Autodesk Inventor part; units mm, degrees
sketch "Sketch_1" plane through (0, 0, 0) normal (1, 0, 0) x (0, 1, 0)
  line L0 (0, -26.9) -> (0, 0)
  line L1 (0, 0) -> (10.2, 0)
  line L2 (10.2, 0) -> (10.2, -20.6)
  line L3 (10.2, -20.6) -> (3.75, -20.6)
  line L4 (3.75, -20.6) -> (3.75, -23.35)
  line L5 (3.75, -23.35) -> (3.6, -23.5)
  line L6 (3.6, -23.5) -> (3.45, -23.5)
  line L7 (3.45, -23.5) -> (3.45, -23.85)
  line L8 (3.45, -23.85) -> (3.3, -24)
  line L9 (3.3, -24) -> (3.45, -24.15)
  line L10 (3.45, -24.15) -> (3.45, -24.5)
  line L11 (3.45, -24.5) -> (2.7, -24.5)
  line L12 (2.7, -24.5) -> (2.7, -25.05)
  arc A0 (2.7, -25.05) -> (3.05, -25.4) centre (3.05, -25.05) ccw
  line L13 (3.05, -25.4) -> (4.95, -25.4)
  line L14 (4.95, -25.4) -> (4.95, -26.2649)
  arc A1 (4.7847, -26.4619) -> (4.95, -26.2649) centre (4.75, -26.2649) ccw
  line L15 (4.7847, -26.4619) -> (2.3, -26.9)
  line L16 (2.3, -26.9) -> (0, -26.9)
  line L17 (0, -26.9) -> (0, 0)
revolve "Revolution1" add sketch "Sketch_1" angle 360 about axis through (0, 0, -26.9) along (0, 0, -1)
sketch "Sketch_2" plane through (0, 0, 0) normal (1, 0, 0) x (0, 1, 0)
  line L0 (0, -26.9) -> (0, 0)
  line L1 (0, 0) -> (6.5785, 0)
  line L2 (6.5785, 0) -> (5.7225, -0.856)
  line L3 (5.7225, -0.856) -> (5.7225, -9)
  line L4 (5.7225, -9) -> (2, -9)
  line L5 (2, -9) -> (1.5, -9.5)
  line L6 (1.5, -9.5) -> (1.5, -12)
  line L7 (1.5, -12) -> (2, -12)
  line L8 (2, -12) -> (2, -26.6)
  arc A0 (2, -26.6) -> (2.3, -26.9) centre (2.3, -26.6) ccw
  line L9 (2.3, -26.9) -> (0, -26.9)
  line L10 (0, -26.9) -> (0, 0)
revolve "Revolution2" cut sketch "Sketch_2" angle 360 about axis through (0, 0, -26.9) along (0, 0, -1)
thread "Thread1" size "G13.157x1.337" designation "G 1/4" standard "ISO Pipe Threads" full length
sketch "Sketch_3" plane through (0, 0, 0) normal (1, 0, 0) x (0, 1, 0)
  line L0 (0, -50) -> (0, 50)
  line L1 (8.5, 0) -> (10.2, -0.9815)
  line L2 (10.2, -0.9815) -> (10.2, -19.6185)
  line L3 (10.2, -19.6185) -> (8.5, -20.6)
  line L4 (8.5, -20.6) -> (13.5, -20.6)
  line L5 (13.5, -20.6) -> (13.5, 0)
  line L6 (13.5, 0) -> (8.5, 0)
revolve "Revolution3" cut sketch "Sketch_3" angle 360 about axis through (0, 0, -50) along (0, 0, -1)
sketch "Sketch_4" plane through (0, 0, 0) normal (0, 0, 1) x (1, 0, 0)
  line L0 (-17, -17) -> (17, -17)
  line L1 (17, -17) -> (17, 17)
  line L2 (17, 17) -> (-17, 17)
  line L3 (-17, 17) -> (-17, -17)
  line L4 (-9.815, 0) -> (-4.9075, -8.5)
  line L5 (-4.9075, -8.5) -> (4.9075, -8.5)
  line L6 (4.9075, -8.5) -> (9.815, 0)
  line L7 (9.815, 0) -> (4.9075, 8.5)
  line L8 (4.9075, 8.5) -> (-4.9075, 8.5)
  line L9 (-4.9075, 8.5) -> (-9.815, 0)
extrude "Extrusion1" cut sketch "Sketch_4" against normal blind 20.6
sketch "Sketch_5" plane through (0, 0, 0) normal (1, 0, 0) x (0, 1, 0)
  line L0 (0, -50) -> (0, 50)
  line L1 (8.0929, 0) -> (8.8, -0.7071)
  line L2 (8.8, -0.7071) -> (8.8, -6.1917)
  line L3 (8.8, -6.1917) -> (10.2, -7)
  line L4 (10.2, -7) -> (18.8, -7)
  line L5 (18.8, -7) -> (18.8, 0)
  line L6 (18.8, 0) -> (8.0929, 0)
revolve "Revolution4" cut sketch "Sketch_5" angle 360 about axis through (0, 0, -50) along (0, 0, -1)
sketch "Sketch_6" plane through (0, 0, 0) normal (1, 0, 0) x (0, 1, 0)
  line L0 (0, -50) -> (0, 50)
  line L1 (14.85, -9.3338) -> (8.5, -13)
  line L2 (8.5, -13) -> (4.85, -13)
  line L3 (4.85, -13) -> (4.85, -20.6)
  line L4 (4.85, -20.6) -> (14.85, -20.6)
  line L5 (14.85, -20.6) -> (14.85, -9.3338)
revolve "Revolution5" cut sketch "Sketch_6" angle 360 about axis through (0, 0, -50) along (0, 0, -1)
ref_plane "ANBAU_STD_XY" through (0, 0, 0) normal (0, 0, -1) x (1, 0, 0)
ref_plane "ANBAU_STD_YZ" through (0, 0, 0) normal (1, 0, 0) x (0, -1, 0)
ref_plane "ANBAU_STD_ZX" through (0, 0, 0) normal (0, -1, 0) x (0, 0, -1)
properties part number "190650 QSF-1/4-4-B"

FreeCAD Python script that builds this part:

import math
import FreeCAD as App
import Part
import Sketcher

V = App.Vector
Q = App.Units.Quantity

doc = App.newDocument("Part")
body = doc.addObject("PartDesign::Body", "Body")

sketch1 = doc.addObject("Sketcher::SketchObject", "Sketch")
body.addObject(sketch1)
sketch1.AttachmentSupport = (doc.YZ_Plane, [""])
sketch1.MapMode = "FlatFace"
sketch1.addGeometry(Part.LineSegment(V(0, 0, 0), V(0, -26.9, 0)), False)
sketch1.addGeometry(Part.LineSegment(V(0, -26.9, 0), V(2.3, -26.9, 0)), False)
sketch1.addGeometry(Part.LineSegment(V(2.3, -26.9, 0), V(4.7847, -26.4619, 0)), False)
sketch1.addGeometry(Part.ArcOfCircle(Part.Circle(V(4.75, -26.2649, 0), V(0, 0, 1), 0.200033), math.radians(-80.010272), math.radians(0)), False)
sketch1.addGeometry(Part.LineSegment(V(4.95, -26.2649, 0), V(4.95, -25.4, 0)), False)
sketch1.addGeometry(Part.LineSegment(V(4.95, -25.4, 0), V(3.05, -25.4, 0)), False)
sketch1.addGeometry(Part.ArcOfCircle(Part.Circle(V(3.05, -25.05, 0), V(0, 0, 1), 0.35), math.radians(180), math.radians(270)), False)
sketch1.addGeometry(Part.LineSegment(V(2.7, -25.05, 0), V(2.7, -24.5, 0)), False)
sketch1.addGeometry(Part.LineSegment(V(2.7, -24.5, 0), V(3.45, -24.5, 0)), False)
sketch1.addGeometry(Part.LineSegment(V(3.45, -24.5, 0), V(3.45, -24.15, 0)), False)
sketch1.addGeometry(Part.LineSegment(V(3.45, -24.15, 0), V(3.3, -24, 0)), False)
sketch1.addGeometry(Part.LineSegment(V(3.3, -24, 0), V(3.45, -23.85, 0)), False)
sketch1.addGeometry(Part.LineSegment(V(3.45, -23.85, 0), V(3.45, -23.5, 0)), False)
sketch1.addGeometry(Part.LineSegment(V(3.45, -23.5, 0), V(3.6, -23.5, 0)), False)
sketch1.addGeometry(Part.LineSegment(V(3.6, -23.5, 0), V(3.75, -23.35, 0)), False)
sketch1.addGeometry(Part.LineSegment(V(3.75, -23.35, 0), V(3.75, -20.6, 0)), False)
sketch1.addGeometry(Part.LineSegment(V(3.75, -20.6, 0), V(10.2, -20.6, 0)), False)
sketch1.addGeometry(Part.LineSegment(V(10.2, -20.6, 0), V(10.2, 0, 0)), False)
sketch1.addGeometry(Part.LineSegment(V(10.2, 0, 0), V(0, 0, 0)), False)
sketch1.addConstraint(Sketcher.Constraint("Coincident", 0, 2, 1, 1))
sketch1.addConstraint(Sketcher.Constraint("Coincident", 1, 2, 2, 1))
sketch1.addConstraint(Sketcher.Constraint("Tangent", 2, 2, 3, 1))
sketch1.addConstraint(Sketcher.Constraint("Tangent", 3, 2, 4, 1))
sketch1.addConstraint(Sketcher.Constraint("Coincident", 4, 2, 5, 1))
sketch1.addConstraint(Sketcher.Constraint("Tangent", 5, 2, 6, 2))
sketch1.addConstraint(Sketcher.Constraint("Tangent", 6, 1, 7, 1))
sketch1.addConstraint(Sketcher.Constraint("Coincident", 7, 2, 8, 1))
sketch1.addConstraint(Sketcher.Constraint("Coincident", 8, 2, 9, 1))
sketch1.addConstraint(Sketcher.Constraint("Coincident", 9, 2, 10, 1))
sketch1.addConstraint(Sketcher.Constraint("Coincident", 10, 2, 11, 1))
sketch1.addConstraint(Sketcher.Constraint("Coincident", 11, 2, 12, 1))
sketch1.addConstraint(Sketcher.Constraint("Coincident", 12, 2, 13, 1))
sketch1.addConstraint(Sketcher.Constraint("Coincident", 13, 2, 14, 1))
sketch1.addConstraint(Sketcher.Constraint("Coincident", 14, 2, 15, 1))
sketch1.addConstraint(Sketcher.Constraint("Coincident", 15, 2, 16, 1))
sketch1.addConstraint(Sketcher.Constraint("Coincident", 16, 2, 17, 1))
sketch1.addConstraint(Sketcher.Constraint("Coincident", 17, 2, 18, 1))
sketch1.addConstraint(Sketcher.Constraint("Coincident", 18, 2, 0, 1))
sketch1.addConstraint(Sketcher.Constraint("Vertical", 0))
sketch1.addConstraint(Sketcher.Constraint("Horizontal", 1))
sketch1.addConstraint(Sketcher.Constraint("Vertical", 4))
sketch1.addConstraint(Sketcher.Constraint("Horizontal", 5))
sketch1.addConstraint(Sketcher.Constraint("Vertical", 7))
sketch1.addConstraint(Sketcher.Constraint("Horizontal", 8))
sketch1.addConstraint(Sketcher.Constraint("Vertical", 9))
sketch1.addConstraint(Sketcher.Constraint("Vertical", 12))
sketch1.addConstraint(Sketcher.Constraint("Horizontal", 13))
sketch1.addConstraint(Sketcher.Constraint("Vertical", 15))
sketch1.addConstraint(Sketcher.Constraint("Horizontal", 16))
sketch1.addConstraint(Sketcher.Constraint("Vertical", 17))
sketch1.addConstraint(Sketcher.Constraint("Horizontal", 18))
sketch1.addConstraint(Sketcher.Constraint("Coincident", 18, 2, -1, 1))
sketch1.addConstraint(Sketcher.Constraint("Perpendicular", 10, 11))
sketch1.addConstraint(Sketcher.Constraint("Parallel", 11, 14))
sketch1.addConstraint(Sketcher.Constraint("Vertical", 9, 2, 11, 2))
sketch1.addConstraint(Sketcher.Constraint("Equal", 9, 12))
sketch1.addConstraint(Sketcher.Constraint("Equal", 10, 11))
sketch1.addConstraint(Sketcher.Constraint("Equal", 11, 14))
sketch1.addConstraint(Sketcher.Constraint("Radius", 3, 0.2))
sketch1.addConstraint(Sketcher.Constraint("Angle", 2, Q("9.9996 deg")))
sketch1.addConstraint(Sketcher.Constraint("Radius", 6, 0.35))
sketch1.addConstraint(Sketcher.Constraint("DistanceX", 1, 1, 1, 2, 2.3))
sketch1.addConstraint(Sketcher.Constraint("DistanceX", 5, 2, 5, 1, 1.9))
sketch1.addConstraint(Sketcher.Constraint("DistanceX", 18, 2, 18, 1, 10.2))
sketch1.addConstraint(Sketcher.Constraint("DistanceY", 0, 2, 0, 1, 26.9))
sketch1.addConstraint(Sketcher.Constraint("DistanceY", 17, 1, 17, 2, 20.6))
sketch1.addConstraint(Sketcher.Constraint("DistanceY", 10, 2, -1, 1, 24.0))
sketch1.addConstraint(Sketcher.Constraint("DistanceY", 8, 2, 12, 2, 1.0))
sketch1.addConstraint(Sketcher.Constraint("DistanceX", 8, 1, 8, 2, 0.75))
sketch1.addConstraint(Sketcher.Constraint("DistanceX", 13, 1, 13, 2, 0.15))
sketch1.addConstraint(Sketcher.Constraint("DistanceX", 16, 1, 16, 2, 6.45))
sketch1.addConstraint(Sketcher.Constraint("DistanceY", 7, 1, 7, 2, 0.55))
sketch1.addConstraint(Sketcher.Constraint("DistanceY", 9, 1, 9, 2, 0.35))
revolution = doc.addObject("PartDesign::Revolution", "Revolution")
body.addObject(revolution)
revolution.Profile = sketch1
revolution.ReferenceAxis = (sketch1, ["V_Axis"])
revolution.Angle = 360

sketch2 = doc.addObject("Sketcher::SketchObject", "Sketch001")
body.addObject(sketch2)
sketch2.AttachmentSupport = (doc.YZ_Plane, [""])
sketch2.MapMode = "FlatFace"
sketch2.addGeometry(Part.LineSegment(V(0, 0, 0), V(0, -26.9, 0)), False)
sketch2.addGeometry(Part.LineSegment(V(0, -26.9, 0), V(2.3, -26.9, 0)), False)
sketch2.addGeometry(Part.ArcOfCircle(Part.Circle(V(2.3, -26.6, 0), V(0, 0, 1), 0.3), math.radians(180), math.radians(270)), False)
sketch2.addGeometry(Part.LineSegment(V(2, -26.6, 0), V(2, -12, 0)), False)
sketch2.addGeometry(Part.LineSegment(V(2, -12, 0), V(1.5, -12, 0)), False)
sketch2.addGeometry(Part.LineSegment(V(1.5, -12, 0), V(1.5, -9.5, 0)), False)
sketch2.addGeometry(Part.LineSegment(V(1.5, -9.5, 0), V(2, -9, 0)), False)
sketch2.addGeometry(Part.LineSegment(V(2, -9, 0), V(5.7225, -9, 0)), False)
sketch2.addGeometry(Part.LineSegment(V(5.7225, -9, 0), V(5.7225, -0.856, 0)), False)
sketch2.addGeometry(Part.LineSegment(V(5.7225, -0.856, 0), V(6.5785, 0, 0)), False)
sketch2.addGeometry(Part.LineSegment(V(6.5785, 0, 0), V(0, 0, 0)), False)
sketch2.addConstraint(Sketcher.Constraint("Coincident", 0, 2, 1, 1))
sketch2.addConstraint(Sketcher.Constraint("Tangent", 1, 2, 2, 2))
sketch2.addConstraint(Sketcher.Constraint("Tangent", 2, 1, 3, 1))
sketch2.addConstraint(Sketcher.Constraint("Coincident", 3, 2, 4, 1))
sketch2.addConstraint(Sketcher.Constraint("Coincident", 4, 2, 5, 1))
sketch2.addConstraint(Sketcher.Constraint("Coincident", 5, 2, 6, 1))
sketch2.addConstraint(Sketcher.Constraint("Coincident", 6, 2, 7, 1))
sketch2.addConstraint(Sketcher.Constraint("Coincident", 7, 2, 8, 1))
sketch2.addConstraint(Sketcher.Constraint("Coincident", 8, 2, 9, 1))
sketch2.addConstraint(Sketcher.Constraint("Coincident", 9, 2, 10, 1))
sketch2.addConstraint(Sketcher.Constraint("Coincident", 10, 2, 0, 1))
sketch2.addConstraint(Sketcher.Constraint("Vertical", 0))
sketch2.addConstraint(Sketcher.Constraint("Horizontal", 1))
sketch2.addConstraint(Sketcher.Constraint("Vertical", 3))
sketch2.addConstraint(Sketcher.Constraint("Horizontal", 4))
sketch2.addConstraint(Sketcher.Constraint("Vertical", 5))
sketch2.addConstraint(Sketcher.Constraint("Horizontal", 7))
sketch2.addConstraint(Sketcher.Constraint("Vertical", 8))
sketch2.addConstraint(Sketcher.Constraint("Horizontal", 10))
sketch2.addConstraint(Sketcher.Constraint("Coincident", 10, 2, -1, 1))
sketch2.addConstraint(Sketcher.Constraint("Parallel", 6, 9))
sketch2.addConstraint(Sketcher.Constraint("Vertical", 3, 2, 6, 2))
sketch2.addConstraint(Sketcher.Constraint("Radius", 2, 0.3))
sketch2.addConstraint(Sketcher.Constraint("Angle", 6, Q("45 deg")))
sketch2.addConstraint(Sketcher.Constraint("DistanceX", 1, 1, 1, 2, 2.3))
sketch2.addConstraint(Sketcher.Constraint("DistanceX", 4, 2, 4, 1, 0.5))
sketch2.addConstraint(Sketcher.Constraint("DistanceY", 0, 2, 0, 1, 26.9))
sketch2.addConstraint(Sketcher.Constraint("DistanceY", 3, 1, 3, 2, 14.6))
sketch2.addConstraint(Sketcher.Constraint("DistanceY", 5, 1, 5, 2, 2.5))
sketch2.addConstraint(Sketcher.Constraint("DistanceY", 8, 1, 8, 2, 8.144))
sketch2.addConstraint(Sketcher.Constraint("DistanceX", 7, 1, 7, 2, 3.7225))
groove = doc.addObject("PartDesign::Groove", "Groove")
body.addObject(groove)
groove.Profile = sketch2
groove.ReferenceAxis = (sketch2, ["V_Axis"])
groove.Angle = 360

sketch3 = doc.addObject("Sketcher::SketchObject", "Sketch002")
body.addObject(sketch3)
sketch3.AttachmentSupport = (doc.YZ_Plane, [""])
sketch3.MapMode = "FlatFace"
sketch3.addGeometry(Part.LineSegment(V(13.5, 0, 0), V(8.5, 0, 0)), False)
sketch3.addGeometry(Part.LineSegment(V(8.5, 0, 0), V(10.2, -0.9815, 0)), False)
sketch3.addGeometry(Part.LineSegment(V(10.2, -0.9815, 0), V(10.2, -19.6185, 0)), False)
sketch3.addGeometry(Part.LineSegment(V(10.2, -19.6185, 0), V(8.5, -20.6, 0)), False)
sketch3.addGeometry(Part.LineSegment(V(8.5, -20.6, 0), V(13.5, -20.6, 0)), False)
sketch3.addGeometry(Part.LineSegment(V(13.5, -20.6, 0), V(13.5, 0, 0)), False)
sketch3.addConstraint(Sketcher.Constraint("Coincident", 0, 2, 1, 1))
sketch3.addConstraint(Sketcher.Constraint("Coincident", 1, 2, 2, 1))
sketch3.addConstraint(Sketcher.Constraint("Coincident", 2, 2, 3, 1))
sketch3.addConstraint(Sketcher.Constraint("Coincident", 3, 2, 4, 1))
sketch3.addConstraint(Sketcher.Constraint("Coincident", 4, 2, 5, 1))
sketch3.addConstraint(Sketcher.Constraint("Coincident", 5, 2, 0, 1))
sketch3.addConstraint(Sketcher.Constraint("Horizontal", 0))
sketch3.addConstraint(Sketcher.Constraint("Vertical", 2))
sketch3.addConstraint(Sketcher.Constraint("Horizontal", 4))
sketch3.addConstraint(Sketcher.Constraint("Vertical", 5))
sketch3.addConstraint(Sketcher.Constraint("PointOnObject", 0, 2, -1))
sketch3.addConstraint(Sketcher.Constraint("Vertical", 0, 2, 3, 2))
sketch3.addConstraint(Sketcher.Constraint("Equal", 1, 3))
sketch3.addConstraint(Sketcher.Constraint("DistanceX", 0, 2, 0, 1, 5.0))
sketch3.addConstraint(Sketcher.Constraint("Angle", 1, Q("-30 deg")))
sketch3.addConstraint(Sketcher.Constraint("DistanceY", 5, 1, 5, 2, 20.6))
sketch3.addConstraint(Sketcher.Constraint("DistanceX", -1, 1, 0, 2, 8.5))
sketch3.addConstraint(Sketcher.Constraint("DistanceX", -1, 1, 1, 2, 10.2))
groove2 = doc.addObject("PartDesign::Groove", "Groove001")
body.addObject(groove2)
groove2.Profile = sketch3
groove2.ReferenceAxis = (sketch3, ["V_Axis"])
groove2.Angle = 360

sketch4 = doc.addObject("Sketcher::SketchObject", "Sketch003")
body.addObject(sketch4)
sketch4.AttachmentSupport = (doc.XY_Plane, [""])
sketch4.MapMode = "FlatFace"
sketch4.addGeometry(Part.LineSegment(V(-17, 17, 0), V(-17, -17, 0)), False)
sketch4.addGeometry(Part.LineSegment(V(-17, -17, 0), V(17, -17, 0)), False)
sketch4.addGeometry(Part.LineSegment(V(17, -17, 0), V(17, 17, 0)), False)
sketch4.addGeometry(Part.LineSegment(V(17, 17, 0), V(-17, 17, 0)), False)
sketch4.addGeometry(Part.LineSegment(V(-4.9075, -8.5, 0), V(-9.815, 0, 0)), False)
sketch4.addGeometry(Part.LineSegment(V(-9.815, 0, 0), V(-4.9075, 8.5, 0)), False)
sketch4.addGeometry(Part.LineSegment(V(-4.9075, 8.5, 0), V(4.9075, 8.5, 0)), False)
sketch4.addGeometry(Part.LineSegment(V(4.9075, 8.5, 0), V(9.815, 0, 0)), False)
sketch4.addGeometry(Part.LineSegment(V(9.815, 0, 0), V(4.9075, -8.5, 0)), False)
sketch4.addGeometry(Part.LineSegment(V(4.9075, -8.5, 0), V(-4.9075, -8.5, 0)), False)
sketch4.addConstraint(Sketcher.Constraint("Coincident", 0, 2, 1, 1))
sketch4.addConstraint(Sketcher.Constraint("Coincident", 1, 2, 2, 1))
sketch4.addConstraint(Sketcher.Constraint("Coincident", 2, 2, 3, 1))
sketch4.addConstraint(Sketcher.Constraint("Coincident", 3, 2, 0, 1))
sketch4.addConstraint(Sketcher.Constraint("Coincident", 4, 2, 5, 1))
sketch4.addConstraint(Sketcher.Constraint("Coincident", 5, 2, 6, 1))
sketch4.addConstraint(Sketcher.Constraint("Coincident", 6, 2, 7, 1))
sketch4.addConstraint(Sketcher.Constraint("Coincident", 7, 2, 8, 1))
sketch4.addConstraint(Sketcher.Constraint("Coincident", 8, 2, 9, 1))
sketch4.addConstraint(Sketcher.Constraint("Coincident", 9, 2, 4, 1))
sketch4.addConstraint(Sketcher.Constraint("Vertical", 0))
sketch4.addConstraint(Sketcher.Constraint("Horizontal", 1))
sketch4.addConstraint(Sketcher.Constraint("Vertical", 2))
sketch4.addConstraint(Sketcher.Constraint("Horizontal", 3))
sketch4.addConstraint(Sketcher.Constraint("Horizontal", 6))
sketch4.addConstraint(Sketcher.Constraint("Horizontal", 9))
sketch4.addConstraint(Sketcher.Constraint("Symmetric", 0, 2, 2, 2, -1, 1))
sketch4.addConstraint(Sketcher.Constraint("Symmetric", 4, 2, 7, 2, -1, 1))
sketch4.addConstraint(Sketcher.Constraint("Symmetric", 5, 2, 8, 2, -1, 1))
sketch4.addConstraint(Sketcher.Constraint("PointOnObject", 4, 2, -1))
sketch4.addConstraint(Sketcher.Constraint("Parallel", 4, 7))
sketch4.addConstraint(Sketcher.Constraint("Vertical", 6, 2, 8, 2))
sketch4.addConstraint(Sketcher.Constraint("Equal", 3, 0))
sketch4.addConstraint(Sketcher.Constraint("DistanceX", 1, 1, 1, 2, 34.0))
sketch4.addConstraint(Sketcher.Constraint("Angle", 4, Q("120 deg")))
sketch4.addConstraint(Sketcher.Constraint("DistanceY", 8, 2, 6, 2, 17.0))
sketch4.addConstraint(Sketcher.Constraint("DistanceX", 6, 1, 6, 2, 9.815))
pocket1 = doc.addObject("PartDesign::Pocket", "Pocket")
body.addObject(pocket1)
pocket1.Profile = sketch4
pocket1.Length = 20.6

sketch5 = doc.addObject("Sketcher::SketchObject", "Sketch004")
body.addObject(sketch5)
sketch5.AttachmentSupport = (doc.YZ_Plane, [""])
sketch5.MapMode = "FlatFace"
sketch5.addGeometry(Part.LineSegment(V(18.8, 0, 0), V(8.0929, 0, 0)), False)
sketch5.addGeometry(Part.LineSegment(V(8.0929, 0, 0), V(8.8, -0.7071, 0)), False)
sketch5.addGeometry(Part.LineSegment(V(8.8, -0.7071, 0), V(8.8, -6.1917, 0)), False)
sketch5.addGeometry(Part.LineSegment(V(8.8, -6.1917, 0), V(10.2, -7, 0)), False)
sketch5.addGeometry(Part.LineSegment(V(10.2, -7, 0), V(18.8, -7, 0)), False)
sketch5.addGeometry(Part.LineSegment(V(18.8, -7, 0), V(18.8, 0, 0)), False)
sketch5.addConstraint(Sketcher.Constraint("Coincident", 0, 2, 1, 1))
sketch5.addConstraint(Sketcher.Constraint("Coincident", 1, 2, 2, 1))
sketch5.addConstraint(Sketcher.Constraint("Coincident", 2, 2, 3, 1))
sketch5.addConstraint(Sketcher.Constraint("Coincident", 3, 2, 4, 1))
sketch5.addConstraint(Sketcher.Constraint("Coincident", 4, 2, 5, 1))
sketch5.addConstraint(Sketcher.Constraint("Coincident", 5, 2, 0, 1))
sketch5.addConstraint(Sketcher.Constraint("Horizontal", 0))
sketch5.addConstraint(Sketcher.Constraint("Vertical", 2))
sketch5.addConstraint(Sketcher.Constraint("Horizontal", 4))
sketch5.addConstraint(Sketcher.Constraint("Vertical", 5))
sketch5.addConstraint(Sketcher.Constraint("PointOnObject", 0, 2, -1))
sketch5.addConstraint(Sketcher.Constraint("DistanceY", 5, 1, 5, 2, 7.0))
sketch5.addConstraint(Sketcher.Constraint("Angle", 1, Q("-45 deg")))
sketch5.addConstraint(Sketcher.Constraint("Angle", 3, Q("-30.0003 deg")))
sketch5.addConstraint(Sketcher.Constraint("Distance", 1, 1.0))
sketch5.addConstraint(Sketcher.Constraint("DistanceX", 4, 1, 4, 2, 8.6))
sketch5.addConstraint(Sketcher.Constraint("DistanceX", 2, 2, 4, 2, 10.0))
sketch5.addConstraint(Sketcher.Constraint("DistanceX", -1, 1, 1, 2, 8.8))
groove3 = doc.addObject("PartDesign::Groove", "Groove002")
body.addObject(groove3)
groove3.Profile = sketch5
groove3.ReferenceAxis = (sketch5, ["V_Axis"])
groove3.Angle = 360

sketch6 = doc.addObject("Sketcher::SketchObject", "Sketch005")
body.addObject(sketch6)
sketch6.AttachmentSupport = (doc.YZ_Plane, [""])
sketch6.MapMode = "FlatFace"
sketch6.addGeometry(Part.LineSegment(V(14.85, -20.6, 0), V(14.85, -9.3338, 0)), False)
sketch6.addGeometry(Part.LineSegment(V(14.85, -9.3338, 0), V(8.5, -13, 0)), False)
sketch6.addGeometry(Part.LineSegment(V(8.5, -13, 0), V(4.85, -13, 0)), False)
sketch6.addGeometry(Part.LineSegment(V(4.85, -13, 0), V(4.85, -20.6, 0)), False)
sketch6.addGeometry(Part.LineSegment(V(4.85, -20.6, 0), V(14.85, -20.6, 0)), False)
sketch6.addConstraint(Sketcher.Constraint("Coincident", 0, 2, 1, 1))
sketch6.addConstraint(Sketcher.Constraint("Coincident", 1, 2, 2, 1))
sketch6.addConstraint(Sketcher.Constraint("Coincident", 2, 2, 3, 1))
sketch6.addConstraint(Sketcher.Constraint("Coincident", 3, 2, 4, 1))
sketch6.addConstraint(Sketcher.Constraint("Coincident", 4, 2, 0, 1))
sketch6.addConstraint(Sketcher.Constraint("Vertical", 0))
sketch6.addConstraint(Sketcher.Constraint("Horizontal", 2))
sketch6.addConstraint(Sketcher.Constraint("Vertical", 3))
sketch6.addConstraint(Sketcher.Constraint("Horizontal", 4))
sketch6.addConstraint(Sketcher.Constraint("DistanceX", 4, 1, 4, 2, 10.0))
sketch6.addConstraint(Sketcher.Constraint("Angle", 1, Q("-149.9998 deg")))
sketch6.addConstraint(Sketcher.Constraint("DistanceY", 3, 2, 3, 1, 7.6))
sketch6.addConstraint(Sketcher.Constraint("DistanceY", 1, 2, -1, 1, 13.0))
sketch6.addConstraint(Sketcher.Constraint("DistanceX", 2, 2, 2, 1, 3.65))
sketch6.addConstraint(Sketcher.Constraint("DistanceX", -1, 1, 1, 2, 8.5))
groove4 = doc.addObject("PartDesign::Groove", "Groove003")
body.addObject(groove4)
groove4.Profile = sketch6
groove4.ReferenceAxis = (sketch6, ["V_Axis"])
groove4.Angle = 360

doc.recompute()
